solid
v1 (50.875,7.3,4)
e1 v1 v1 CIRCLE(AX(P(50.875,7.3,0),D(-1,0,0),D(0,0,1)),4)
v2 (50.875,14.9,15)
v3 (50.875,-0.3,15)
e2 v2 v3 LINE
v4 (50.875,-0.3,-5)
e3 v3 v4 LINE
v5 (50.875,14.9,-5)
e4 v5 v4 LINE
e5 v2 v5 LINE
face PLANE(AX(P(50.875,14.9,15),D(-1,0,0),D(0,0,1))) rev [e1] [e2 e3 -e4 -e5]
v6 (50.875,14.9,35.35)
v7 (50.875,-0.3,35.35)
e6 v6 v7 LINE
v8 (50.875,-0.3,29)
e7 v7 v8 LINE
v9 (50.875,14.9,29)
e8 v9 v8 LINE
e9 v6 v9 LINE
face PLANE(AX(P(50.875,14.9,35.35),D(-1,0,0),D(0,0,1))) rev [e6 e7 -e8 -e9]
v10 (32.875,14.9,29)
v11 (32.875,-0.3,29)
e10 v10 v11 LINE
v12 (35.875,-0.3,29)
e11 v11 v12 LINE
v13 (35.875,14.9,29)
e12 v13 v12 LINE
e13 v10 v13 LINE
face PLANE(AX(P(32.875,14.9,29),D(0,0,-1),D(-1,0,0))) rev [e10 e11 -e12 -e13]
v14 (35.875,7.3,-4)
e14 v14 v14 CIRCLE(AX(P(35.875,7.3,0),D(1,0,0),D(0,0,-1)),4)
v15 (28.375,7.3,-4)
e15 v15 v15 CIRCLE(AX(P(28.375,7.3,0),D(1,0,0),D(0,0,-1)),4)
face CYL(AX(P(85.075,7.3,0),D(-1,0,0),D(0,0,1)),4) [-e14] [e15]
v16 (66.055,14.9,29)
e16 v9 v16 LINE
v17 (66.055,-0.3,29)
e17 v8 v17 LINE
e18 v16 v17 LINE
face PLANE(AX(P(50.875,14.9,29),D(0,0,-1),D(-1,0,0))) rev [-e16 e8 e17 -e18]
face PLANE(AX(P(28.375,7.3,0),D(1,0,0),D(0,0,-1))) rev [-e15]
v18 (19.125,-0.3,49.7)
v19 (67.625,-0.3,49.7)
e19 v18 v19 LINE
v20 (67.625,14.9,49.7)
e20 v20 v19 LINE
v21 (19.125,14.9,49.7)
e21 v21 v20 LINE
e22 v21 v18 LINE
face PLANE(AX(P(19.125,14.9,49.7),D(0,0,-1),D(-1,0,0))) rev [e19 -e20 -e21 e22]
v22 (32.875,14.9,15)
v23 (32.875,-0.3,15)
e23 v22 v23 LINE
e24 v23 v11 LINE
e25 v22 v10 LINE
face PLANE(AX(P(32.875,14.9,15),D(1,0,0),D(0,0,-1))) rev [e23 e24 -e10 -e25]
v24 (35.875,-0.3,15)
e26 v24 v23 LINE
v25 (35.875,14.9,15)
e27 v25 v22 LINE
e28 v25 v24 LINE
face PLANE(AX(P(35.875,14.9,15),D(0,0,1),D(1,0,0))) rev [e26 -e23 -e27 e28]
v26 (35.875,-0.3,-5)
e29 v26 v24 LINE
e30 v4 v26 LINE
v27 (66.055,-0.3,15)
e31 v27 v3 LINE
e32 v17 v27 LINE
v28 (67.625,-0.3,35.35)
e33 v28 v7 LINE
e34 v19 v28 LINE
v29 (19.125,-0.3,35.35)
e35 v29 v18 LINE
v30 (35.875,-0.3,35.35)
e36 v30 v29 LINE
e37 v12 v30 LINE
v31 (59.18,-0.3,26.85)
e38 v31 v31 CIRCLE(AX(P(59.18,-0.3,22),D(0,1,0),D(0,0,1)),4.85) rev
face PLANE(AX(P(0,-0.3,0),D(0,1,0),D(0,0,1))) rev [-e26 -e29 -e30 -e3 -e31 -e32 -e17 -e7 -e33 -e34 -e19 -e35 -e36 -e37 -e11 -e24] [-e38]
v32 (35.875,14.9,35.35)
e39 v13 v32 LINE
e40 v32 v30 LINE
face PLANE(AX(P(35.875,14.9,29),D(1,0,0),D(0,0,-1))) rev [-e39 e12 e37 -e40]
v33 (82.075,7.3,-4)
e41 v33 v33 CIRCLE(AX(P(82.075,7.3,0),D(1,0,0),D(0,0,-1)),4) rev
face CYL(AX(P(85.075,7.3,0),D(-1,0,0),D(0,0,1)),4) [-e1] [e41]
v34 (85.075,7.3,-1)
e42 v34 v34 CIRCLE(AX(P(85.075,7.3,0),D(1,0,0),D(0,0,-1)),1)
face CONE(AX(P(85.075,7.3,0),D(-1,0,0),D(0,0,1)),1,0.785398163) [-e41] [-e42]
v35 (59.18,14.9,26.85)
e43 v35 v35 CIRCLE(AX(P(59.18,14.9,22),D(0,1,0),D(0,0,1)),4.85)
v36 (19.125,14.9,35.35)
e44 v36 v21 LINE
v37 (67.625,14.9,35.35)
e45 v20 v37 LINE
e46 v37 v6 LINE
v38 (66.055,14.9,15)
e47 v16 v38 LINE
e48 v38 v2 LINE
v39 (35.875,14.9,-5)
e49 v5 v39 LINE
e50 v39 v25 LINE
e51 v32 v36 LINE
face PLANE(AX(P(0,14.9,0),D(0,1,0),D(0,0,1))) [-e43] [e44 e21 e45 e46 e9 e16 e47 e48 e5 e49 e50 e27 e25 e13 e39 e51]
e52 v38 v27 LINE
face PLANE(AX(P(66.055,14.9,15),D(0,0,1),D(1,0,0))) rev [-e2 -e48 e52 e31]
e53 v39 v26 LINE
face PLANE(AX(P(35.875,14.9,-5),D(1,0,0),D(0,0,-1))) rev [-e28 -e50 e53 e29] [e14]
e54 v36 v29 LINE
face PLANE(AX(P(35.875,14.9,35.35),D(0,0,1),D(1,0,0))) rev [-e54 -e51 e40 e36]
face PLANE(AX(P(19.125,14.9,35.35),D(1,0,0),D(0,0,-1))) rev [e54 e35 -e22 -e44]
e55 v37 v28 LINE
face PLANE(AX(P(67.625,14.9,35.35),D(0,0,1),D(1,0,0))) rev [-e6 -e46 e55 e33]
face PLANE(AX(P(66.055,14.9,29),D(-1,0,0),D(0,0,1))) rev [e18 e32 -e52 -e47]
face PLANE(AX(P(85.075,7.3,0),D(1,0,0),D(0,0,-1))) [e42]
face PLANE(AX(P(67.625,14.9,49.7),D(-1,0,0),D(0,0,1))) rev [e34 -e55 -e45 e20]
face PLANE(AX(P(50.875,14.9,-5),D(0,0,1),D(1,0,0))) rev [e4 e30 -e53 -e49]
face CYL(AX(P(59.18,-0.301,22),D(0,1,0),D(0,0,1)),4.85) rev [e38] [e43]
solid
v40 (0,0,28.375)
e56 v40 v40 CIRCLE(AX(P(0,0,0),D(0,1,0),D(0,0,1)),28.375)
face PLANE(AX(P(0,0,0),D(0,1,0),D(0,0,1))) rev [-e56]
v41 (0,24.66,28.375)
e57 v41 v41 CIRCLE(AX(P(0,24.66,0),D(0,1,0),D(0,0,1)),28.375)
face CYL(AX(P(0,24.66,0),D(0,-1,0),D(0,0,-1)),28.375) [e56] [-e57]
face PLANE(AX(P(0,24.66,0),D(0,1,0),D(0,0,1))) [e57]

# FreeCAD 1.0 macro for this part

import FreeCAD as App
import Part
import Sketcher
from FreeCAD import Vector
Q = App.Units.Quantity


def edges_at(feature, points):
    """Names of the edges that pass closest to the given points."""
    edges = feature.Shape.Edges
    near = lambda p: min(range(len(edges)), key=lambda i: edges[i].distToShape(Part.Vertex(*p))[0])
    return sorted({f"Edge{near(p) + 1}" for p in points})


def add_polygon(sketch, points):
    """Adds a closed chain of lines whose ends are joined by coincident constraints."""
    first, n = sketch.GeometryCount, len(points)
    for a, b in zip(points, points[1:] + points[:1]):
        sketch.addGeometry(Part.LineSegment(App.Vector(*a, 0), App.Vector(*b, 0)), False)
    for i in range(n):
        sketch.addConstraint(Sketcher.Constraint("Coincident", first + i, 2, first + (i + 1) % n, 1))

doc = App.newDocument("Part")
body = doc.addObject("PartDesign::Body", "Body")

# Sketch on XZ plane
sketch1 = body.newObject("Sketcher::SketchObject", "Sketch")
sketch1.AttachmentSupport = (doc.getObject("XZ_Plane"), [""])
sketch1.MapMode = "FlatFace"
sketch1.addGeometry(Part.Circle(Vector(0, 0, 0), Vector(0, 0, 1), 28), False)
sketch1.addConstraint(Sketcher.Constraint("Coincident", 0, 3, -1, 1))
sketch1.addConstraint(Sketcher.Constraint("Diameter", 0, Q("56.75 mm")))
pad1 = body.newObject("PartDesign::Pad", "Pad")
pad1.Profile = sketch1
pad1.Length = 24.66
pad1.Reversed = True
body2 = doc.addObject("PartDesign::Body", "Body001")

# Sketch on YZ plane
sketch2 = body2.newObject("Sketcher::SketchObject", "Sketch001")
sketch2.AttachmentSupport = (doc.getObject("YZ_Plane001"), [""])
sketch2.MapMode = "FlatFace"
sketch2.AttachmentOffset = App.Placement(Vector(0, 0, 28.375), App.Rotation())
sketch2.addGeometry(Part.Circle(Vector(7.3, 0, 0), Vector(0, 0, 1), 4), False)
sketch2.addConstraint(Sketcher.Constraint("PointOnObject", 0, 3, -1))
sketch2.addConstraint(Sketcher.Constraint("Diameter", 0, Q("8 mm")))
sketch2.addConstraint(Sketcher.Constraint("DistanceX", -1, 1, 0, 3, Q("7.3 mm")))
pad2 = body2.newObject("PartDesign::Pad", "Pad001")
pad2.Profile = sketch2
pad2.Length = 56.7
doc.recompute()

chamfer = body2.newObject("PartDesign::Chamfer", "Chamfer")
chamfer.Base = (pad2, edges_at(pad2, [(85.075, 7.3, 4)]))
chamfer.Size = 3

# Sketch on XZ plane
sketch3 = body2.newObject("Sketcher::SketchObject", "Sketch002")
sketch3.AttachmentSupport = (doc.getObject("XZ_Plane001"), [""])
sketch3.MapMode = "FlatFace"
sketch3.AttachmentOffset = App.Placement(Vector(0, 0, -7.3), App.Rotation())
add_polygon(sketch3, [(35.9, -5), (35.9, 15), (32.9, 15), (32.9, 29), (35.9, 29), (35.9, 35.4), (19.1, 35.4), (19.1, 49.7), (67.6, 49.7), (67.6, 35.4), (50.9, 35.4), (50.9, 29), (66.1, 29), (66.1, 15), (50.9, 15), (50.9, -5)])  # lines 0-15
sketch3.addConstraint(Sketcher.Constraint("Vertical", 0))
sketch3.addConstraint(Sketcher.Constraint("Horizontal", 1))
sketch3.addConstraint(Sketcher.Constraint("Vertical", 2))
sketch3.addConstraint(Sketcher.Constraint("Horizontal", 3))
sketch3.addConstraint(Sketcher.Constraint("Vertical", 4))
sketch3.addConstraint(Sketcher.Constraint("Horizontal", 5))
sketch3.addConstraint(Sketcher.Constraint("Vertical", 6))
sketch3.addConstraint(Sketcher.Constraint("Horizontal", 7))
sketch3.addConstraint(Sketcher.Constraint("Vertical", 8))
sketch3.addConstraint(Sketcher.Constraint("Horizontal", 9))
sketch3.addConstraint(Sketcher.Constraint("Vertical", 10))
sketch3.addConstraint(Sketcher.Constraint("Horizontal", 11))
sketch3.addConstraint(Sketcher.Constraint("Vertical", 12))
sketch3.addConstraint(Sketcher.Constraint("Horizontal", 13))
sketch3.addConstraint(Sketcher.Constraint("Vertical", 14))
sketch3.addConstraint(Sketcher.Constraint("Horizontal", 15))
sketch3.addConstraint(Sketcher.Constraint("Horizontal", 5, 2, 8, 2))
sketch3.addConstraint(Sketcher.Constraint("Horizontal", 3, 2, 10, 2))
sketch3.addConstraint(Sketcher.Constraint("Horizontal", 1, 2, 12, 2))
sketch3.addConstraint(Sketcher.Constraint("Vertical", 0, 2, 3, 2))
sketch3.addConstraint(Sketcher.Constraint("Vertical", 10, 2, 13, 2))
sketch3.addConstraint(Sketcher.Constraint("Equal", 5, 9))
sketch3.addConstraint(Sketcher.Constraint("DistanceX", 1, 2, 1, 1, Q("3 mm")))
sketch3.addConstraint(Sketcher.Constraint("DistanceX", 15, 2, 15, 1, Q("15 mm")))
sketch3.addConstraint(Sketcher.Constraint("DistanceY", 0, 1, 0, 2, Q("20 mm")))
sketch3.addConstraint(Sketcher.Constraint("DistanceY", 2, 1, 2, 2, Q("14 mm")))
sketch3.addConstraint(Sketcher.Constraint("DistanceX", 7, 1, 7, 2, Q("48.5 mm")))
sketch3.addConstraint(Sketcher.Constraint("DistanceY", -1, 1, 0, 2, Q("15 mm")))
sketch3.addConstraint(Sketcher.Constraint("DistanceX", 11, 1, 11, 2, Q("15.18 mm")))
sketch3.addConstraint(Sketcher.Constraint("DistanceY", 4, 1, 4, 2, Q("6.35 mm")))
sketch3.addConstraint(Sketcher.Constraint("DistanceY", 6, 1, 6, 2, Q("14.35 mm")))
sketch3.addConstraint(Sketcher.Constraint("DistanceX", -1, 1, 0, 2, Q("35.875 mm")))
pad3 = body2.newObject("PartDesign::Pad", "Pad002")
pad3.Profile = sketch3
pad3.Length = 15.2
pad3.Midplane = True

# Sketch on XZ plane
sketch4 = body2.newObject("Sketcher::SketchObject", "Sketch003")
sketch4.AttachmentSupport = (doc.getObject("XZ_Plane001"), [""])
sketch4.MapMode = "FlatFace"
sketch4.AttachmentOffset = App.Placement(Vector(0, 0, -14.9), App.Rotation())
sketch4.addGeometry(Part.Circle(Vector(59.2, 22, 0), Vector(0, 0, 1), 4.8), False)
sketch4.addConstraint(Sketcher.Constraint("Diameter", 0, Q("9.7 mm")))
sketch4.addConstraint(Sketcher.Constraint("DistanceY", -1, 1, 0, 3, Q("22 mm")))
sketch4.addConstraint(Sketcher.Constraint("DistanceX", -1, 1, 0, 3, Q("59.18 mm")))
pocket1 = body2.newObject("PartDesign::Pocket", "Pocket")
pocket1.Profile = sketch4
pocket1.Length = 15.2
pocket1.Reversed = True

doc.recompute()
